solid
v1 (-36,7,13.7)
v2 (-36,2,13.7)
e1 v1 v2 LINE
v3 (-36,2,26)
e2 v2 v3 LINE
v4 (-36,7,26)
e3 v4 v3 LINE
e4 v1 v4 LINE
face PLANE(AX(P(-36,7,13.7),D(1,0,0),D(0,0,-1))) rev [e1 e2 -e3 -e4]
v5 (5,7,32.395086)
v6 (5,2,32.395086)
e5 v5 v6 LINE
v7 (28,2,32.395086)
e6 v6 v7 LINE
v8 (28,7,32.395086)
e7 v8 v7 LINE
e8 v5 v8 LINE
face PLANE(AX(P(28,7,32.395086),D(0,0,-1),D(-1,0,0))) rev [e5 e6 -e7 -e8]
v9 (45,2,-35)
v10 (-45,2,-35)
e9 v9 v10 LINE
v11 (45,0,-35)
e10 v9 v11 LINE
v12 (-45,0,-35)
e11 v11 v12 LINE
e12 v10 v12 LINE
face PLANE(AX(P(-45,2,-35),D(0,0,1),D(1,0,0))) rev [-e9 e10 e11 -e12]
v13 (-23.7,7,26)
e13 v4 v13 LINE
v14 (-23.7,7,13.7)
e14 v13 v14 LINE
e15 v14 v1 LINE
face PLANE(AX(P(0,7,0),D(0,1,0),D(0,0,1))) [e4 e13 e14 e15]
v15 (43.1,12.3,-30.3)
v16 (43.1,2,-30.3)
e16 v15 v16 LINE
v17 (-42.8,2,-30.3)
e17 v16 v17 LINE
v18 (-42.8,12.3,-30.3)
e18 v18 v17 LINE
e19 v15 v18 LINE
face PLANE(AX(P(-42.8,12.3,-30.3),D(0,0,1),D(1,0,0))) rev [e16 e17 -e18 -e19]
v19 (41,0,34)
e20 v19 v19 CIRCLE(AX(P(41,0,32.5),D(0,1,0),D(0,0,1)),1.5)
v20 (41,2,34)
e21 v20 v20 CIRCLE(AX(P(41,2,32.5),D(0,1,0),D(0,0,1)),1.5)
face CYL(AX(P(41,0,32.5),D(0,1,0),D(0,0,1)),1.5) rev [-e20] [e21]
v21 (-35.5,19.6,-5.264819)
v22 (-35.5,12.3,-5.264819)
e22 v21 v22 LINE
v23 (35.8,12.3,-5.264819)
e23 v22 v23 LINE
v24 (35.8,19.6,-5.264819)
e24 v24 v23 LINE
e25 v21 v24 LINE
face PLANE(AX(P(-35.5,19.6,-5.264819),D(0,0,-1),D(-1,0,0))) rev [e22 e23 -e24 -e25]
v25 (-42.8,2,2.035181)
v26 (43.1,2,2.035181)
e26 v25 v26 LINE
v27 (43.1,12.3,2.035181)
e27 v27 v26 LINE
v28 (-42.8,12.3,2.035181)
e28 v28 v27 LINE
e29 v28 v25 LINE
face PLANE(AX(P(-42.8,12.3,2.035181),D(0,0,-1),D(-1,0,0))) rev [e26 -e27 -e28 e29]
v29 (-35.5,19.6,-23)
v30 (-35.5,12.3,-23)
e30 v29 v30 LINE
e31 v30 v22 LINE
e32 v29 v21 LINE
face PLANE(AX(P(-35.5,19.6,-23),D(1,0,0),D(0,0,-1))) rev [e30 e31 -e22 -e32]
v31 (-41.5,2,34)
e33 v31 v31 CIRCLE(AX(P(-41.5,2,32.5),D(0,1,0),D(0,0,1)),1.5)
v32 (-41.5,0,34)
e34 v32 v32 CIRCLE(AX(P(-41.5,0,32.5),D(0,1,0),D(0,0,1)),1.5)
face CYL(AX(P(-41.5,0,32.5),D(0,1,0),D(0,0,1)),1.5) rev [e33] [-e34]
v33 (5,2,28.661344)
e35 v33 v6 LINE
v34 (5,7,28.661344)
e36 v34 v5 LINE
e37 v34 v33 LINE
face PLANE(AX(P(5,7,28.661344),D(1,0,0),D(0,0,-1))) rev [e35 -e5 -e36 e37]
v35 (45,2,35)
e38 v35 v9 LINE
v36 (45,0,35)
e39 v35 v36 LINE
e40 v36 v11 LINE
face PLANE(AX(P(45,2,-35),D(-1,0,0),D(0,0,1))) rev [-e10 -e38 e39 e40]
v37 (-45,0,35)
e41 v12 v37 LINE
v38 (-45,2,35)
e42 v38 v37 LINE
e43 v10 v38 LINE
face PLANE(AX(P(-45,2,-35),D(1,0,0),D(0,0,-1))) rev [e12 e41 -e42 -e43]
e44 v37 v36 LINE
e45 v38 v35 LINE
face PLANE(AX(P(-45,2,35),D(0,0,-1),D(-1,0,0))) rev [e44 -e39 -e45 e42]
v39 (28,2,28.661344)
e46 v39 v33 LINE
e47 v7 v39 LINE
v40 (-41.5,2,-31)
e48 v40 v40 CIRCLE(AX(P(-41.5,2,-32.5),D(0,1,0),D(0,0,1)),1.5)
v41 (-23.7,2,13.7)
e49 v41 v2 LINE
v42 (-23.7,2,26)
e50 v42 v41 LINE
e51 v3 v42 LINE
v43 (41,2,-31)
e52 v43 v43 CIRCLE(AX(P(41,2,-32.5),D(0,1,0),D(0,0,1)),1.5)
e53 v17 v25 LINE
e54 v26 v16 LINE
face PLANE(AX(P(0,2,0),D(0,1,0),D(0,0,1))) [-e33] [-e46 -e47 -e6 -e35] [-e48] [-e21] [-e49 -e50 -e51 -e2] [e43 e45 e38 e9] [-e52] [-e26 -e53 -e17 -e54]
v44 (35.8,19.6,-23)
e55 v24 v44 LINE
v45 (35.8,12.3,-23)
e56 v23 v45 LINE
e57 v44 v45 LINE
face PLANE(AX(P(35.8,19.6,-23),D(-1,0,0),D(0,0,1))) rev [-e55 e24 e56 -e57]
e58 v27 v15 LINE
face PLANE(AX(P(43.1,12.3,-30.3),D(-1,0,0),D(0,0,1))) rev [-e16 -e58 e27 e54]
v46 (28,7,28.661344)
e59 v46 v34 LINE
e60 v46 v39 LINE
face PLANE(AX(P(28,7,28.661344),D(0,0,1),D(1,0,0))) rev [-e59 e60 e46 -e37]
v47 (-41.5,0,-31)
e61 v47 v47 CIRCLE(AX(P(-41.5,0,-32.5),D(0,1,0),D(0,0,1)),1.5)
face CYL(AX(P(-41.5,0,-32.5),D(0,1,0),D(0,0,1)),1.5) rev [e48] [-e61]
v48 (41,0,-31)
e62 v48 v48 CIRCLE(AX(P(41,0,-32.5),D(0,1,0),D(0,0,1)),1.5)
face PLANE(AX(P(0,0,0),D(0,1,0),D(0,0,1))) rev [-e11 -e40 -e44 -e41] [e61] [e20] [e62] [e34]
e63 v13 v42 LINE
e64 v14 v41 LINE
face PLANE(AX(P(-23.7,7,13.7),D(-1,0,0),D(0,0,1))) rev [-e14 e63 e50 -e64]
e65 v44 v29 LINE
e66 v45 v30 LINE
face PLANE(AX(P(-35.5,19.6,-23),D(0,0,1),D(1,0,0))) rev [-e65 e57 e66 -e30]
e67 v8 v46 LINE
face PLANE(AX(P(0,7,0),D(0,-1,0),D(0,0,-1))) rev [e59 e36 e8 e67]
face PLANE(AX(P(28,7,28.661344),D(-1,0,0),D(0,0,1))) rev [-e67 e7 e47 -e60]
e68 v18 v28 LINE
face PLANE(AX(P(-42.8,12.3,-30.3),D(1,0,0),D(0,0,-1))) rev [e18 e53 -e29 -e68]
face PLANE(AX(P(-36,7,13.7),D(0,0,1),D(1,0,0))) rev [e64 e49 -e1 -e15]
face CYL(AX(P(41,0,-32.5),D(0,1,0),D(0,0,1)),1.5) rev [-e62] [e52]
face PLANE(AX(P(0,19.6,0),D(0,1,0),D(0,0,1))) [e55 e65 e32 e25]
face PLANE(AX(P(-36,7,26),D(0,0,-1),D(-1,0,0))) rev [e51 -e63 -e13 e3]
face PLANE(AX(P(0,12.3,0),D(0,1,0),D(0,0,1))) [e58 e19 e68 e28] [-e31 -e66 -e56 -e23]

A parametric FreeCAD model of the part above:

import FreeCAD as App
import Part
import Sketcher
from FreeCAD import Vector
Q = App.Units.Quantity


def add_polygon(sketch, points):
    """Adds a closed chain of lines whose ends are joined by coincident constraints."""
    first, n = sketch.GeometryCount, len(points)
    for a, b in zip(points, points[1:] + points[:1]):
        sketch.addGeometry(Part.LineSegment(App.Vector(*a, 0), App.Vector(*b, 0)), False)
    for i in range(n):
        sketch.addConstraint(Sketcher.Constraint("Coincident", first + i, 2, first + (i + 1) % n, 1))

doc = App.newDocument("Part")
params = doc.addObject("Spreadsheet::Sheet", "Params")
for row, (alias, value) in enumerate([
    ("sketch1_width", "90 mm"),
    ("sketch1_height", "70 mm"),
    ("pad1_length", "2 mm"),
    ("sketch2_diameter", "3 mm"),
    ("sketch3_width", "23 mm"),
    ("sketch3_width2", "12.3 mm"),
    ("pad2_length", "5 mm"),
    ("sketch4_width", "71.3 mm"),
    ("pad3_length", "17.6 mm"),
    ("sketch5_width", "85.9 mm"),
    ("pad4_length", "10.3 mm"),
], start=1):
    params.set(f"A{row}", alias)
    params.set(f"B{row}", "=" + value)
    params.setAlias(f"B{row}", alias)

body = doc.addObject("PartDesign::Body", "Body")

sketch1 = body.newObject("Sketcher::SketchObject", "Sketch")
sketch1.AttachmentSupport = (doc.getObject("XZ_Plane"), [""])
sketch1.MapMode = "FlatFace"
add_polygon(sketch1, [(-45, -35), (-45, 35), (45, 35), (45, -35)])
sketch1.addConstraint(Sketcher.Constraint("Vertical", 0))
sketch1.addConstraint(Sketcher.Constraint("Horizontal", 1))
sketch1.addConstraint(Sketcher.Constraint("Vertical", 2))
sketch1.addConstraint(Sketcher.Constraint("Horizontal", 3))
sketch1.addConstraint(Sketcher.Constraint("Symmetric", 0, 2, 2, 2, -1, 1))
sketch1.addConstraint(Sketcher.Constraint("DistanceX", 1, 1, 1, 2, Q("90 mm")))
sketch1.addConstraint(Sketcher.Constraint("DistanceY", 0, 1, 0, 2, Q("70 mm")))
sketch1.setExpression("Constraints[9]", "Params.sketch1_width")
sketch1.setExpression("Constraints[10]", "Params.sketch1_height")
pad1 = body.newObject("PartDesign::Pad", "Pad")
pad1.Profile = sketch1
pad1.setExpression("Length", "Params.pad1_length")
pad1.Reversed = True

sketch2 = body.newObject("Sketcher::SketchObject", "Sketch001")
sketch2.AttachmentSupport = (doc.getObject("XZ_Plane"), [""])
sketch2.MapMode = "FlatFace"
sketch2.AttachmentOffset = App.Placement(Vector(0, 0, -2), App.Rotation())
sketch2.addGeometry(Part.Circle(Vector(-41.5, -32.5, 0), Vector(0, 0, 1), 1.5), False)
sketch2.addGeometry(Part.Circle(Vector(-41.5, 32.5, 0), Vector(0, 0, 1), 1.5), False)
sketch2.addGeometry(Part.Circle(Vector(41, 32.5, 0), Vector(0, 0, 1), 1.5), False)
sketch2.addGeometry(Part.Circle(Vector(41, -32.5, 0), Vector(0, 0, 1), 1.5), False)
sketch2.addConstraint(Sketcher.Constraint("Equal", 0, 1))
sketch2.addConstraint(Sketcher.Constraint("Equal", 1, 2))
sketch2.addConstraint(Sketcher.Constraint("Equal", 2, 3))
sketch2.addConstraint(Sketcher.Constraint("Symmetric", 0, 3, 1, 3, -1))
sketch2.addConstraint(Sketcher.Constraint("Symmetric", 2, 3, 3, 3, -1))
sketch2.addConstraint(Sketcher.Constraint("Horizontal", 1, 3, 2, 3))
sketch2.addConstraint(Sketcher.Constraint("Diameter", 0, Q("3 mm")))
sketch2.addConstraint(Sketcher.Constraint("DistanceX", -1, 1, 2, 3, Q("41 mm")))
sketch2.addConstraint(Sketcher.Constraint("DistanceY", 0, 3, 1, 3, Q("65 mm")))
sketch2.addConstraint(Sketcher.Constraint("DistanceX", 0, 3, -1, 1, Q("41.5 mm")))
sketch2.setExpression("Constraints[6]", "Params.sketch2_diameter")
pocket1 = body.newObject("PartDesign::Pocket", "Pocket")
pocket1.Profile = sketch2
pocket1.Type = "ThroughAll"
pocket1.Reversed = True

sketch3 = body.newObject("Sketcher::SketchObject", "Sketch002")
sketch3.AttachmentSupport = (doc.getObject("XZ_Plane"), [""])
sketch3.MapMode = "FlatFace"
sketch3.AttachmentOffset = App.Placement(Vector(0, 0, -2), App.Rotation())
add_polygon(sketch3, [(5, 28.661344), (5, 32.395086), (28, 32.395086), (28, 28.661344)])
add_polygon(sketch3, [(-36, 13.7), (-36, 26), (-23.7, 26), (-23.7, 13.7)])
sketch3.addConstraint(Sketcher.Constraint("Vertical", 0))
sketch3.addConstraint(Sketcher.Constraint("Horizontal", 1))
sketch3.addConstraint(Sketcher.Constraint("Vertical", 2))
sketch3.addConstraint(Sketcher.Constraint("Horizontal", 3))
sketch3.addConstraint(Sketcher.Constraint("Vertical", 4))
sketch3.addConstraint(Sketcher.Constraint("Horizontal", 5))
sketch3.addConstraint(Sketcher.Constraint("Vertical", 6))
sketch3.addConstraint(Sketcher.Constraint("Horizontal", 7))
sketch3.addConstraint(Sketcher.Constraint("Equal", 7, 4))
sketch3.addConstraint(Sketcher.Constraint("DistanceX", 1, 1, 1, 2, Q("23 mm")))
sketch3.addConstraint(Sketcher.Constraint("DistanceX", 5, 1, 5, 2, Q("12.3 mm")))
sketch3.addConstraint(Sketcher.Constraint("DistanceX", -1, 1, 0, 2, Q("5 mm")))
sketch3.addConstraint(Sketcher.Constraint("DistanceX", 4, 2, -1, 1, Q("36 mm")))
sketch3.addConstraint(Sketcher.Constraint("DistanceY", -1, 1, 4, 2, Q("26 mm")))
sketch3.addConstraint(Sketcher.Constraint("DistanceY", 0, 1, 0, 2, Q("3.733742 mm")))
sketch3.addConstraint(Sketcher.Constraint("DistanceY", -1, 1, 0, 2, Q("32.395086 mm")))
sketch3.setExpression("Constraints[17]", "Params.sketch3_width")
sketch3.setExpression("Constraints[18]", "Params.sketch3_width2")
pad2 = body.newObject("PartDesign::Pad", "Pad001")
pad2.Profile = sketch3
pad2.setExpression("Length", "Params.pad2_length")
pad2.Reversed = True

sketch4 = body.newObject("Sketcher::SketchObject", "Sketch003")
sketch4.AttachmentSupport = (doc.getObject("XZ_Plane"), [""])
sketch4.MapMode = "FlatFace"
sketch4.AttachmentOffset = App.Placement(Vector(0, 0, -2), App.Rotation())
add_polygon(sketch4, [(-35.5, -23), (-35.5, -5.264819), (35.8, -5.264819), (35.8, -23)])
sketch4.addConstraint(Sketcher.Constraint("Vertical", 0))
sketch4.addConstraint(Sketcher.Constraint("Horizontal", 1))
sketch4.addConstraint(Sketcher.Constraint("Vertical", 2))
sketch4.addConstraint(Sketcher.Constraint("Horizontal", 3))
sketch4.addConstraint(Sketcher.Constraint("DistanceX", 1, 1, 1, 2, Q("71.3 mm")))
sketch4.addConstraint(Sketcher.Constraint("DistanceY", 2, 2, -1, 1, Q("23 mm")))
sketch4.addConstraint(Sketcher.Constraint("DistanceX", 0, 2, -1, 1, Q("35.5 mm")))
sketch4.addConstraint(Sketcher.Constraint("DistanceY", 0, 1, 0, 2, Q("17.735181 mm")))
sketch4.setExpression("Constraints[8]", "Params.sketch4_width")
pad3 = body.newObject("PartDesign::Pad", "Pad002")
pad3.Profile = sketch4
pad3.setExpression("Length", "Params.pad3_length")
pad3.Reversed = True

sketch5 = body.newObject("Sketcher::SketchObject", "Sketch004")
sketch5.AttachmentSupport = (doc.getObject("XZ_Plane"), [""])
sketch5.MapMode = "FlatFace"
sketch5.AttachmentOffset = App.Placement(Vector(0, 0, -2), App.Rotation())
add_polygon(sketch5, [(-42.8, -30.3), (-42.8, 2.035181), (43.1, 2.035181), (43.1, -30.3)])
sketch5.addConstraint(Sketcher.Constraint("Vertical", 0))
sketch5.addConstraint(Sketcher.Constraint("Horizontal", 1))
sketch5.addConstraint(Sketcher.Constraint("Vertical", 2))
sketch5.addConstraint(Sketcher.Constraint("Horizontal", 3))
sketch5.addConstraint(Sketcher.Constraint("DistanceX", 1, 1, 1, 2, Q("85.9 mm")))
sketch5.addConstraint(Sketcher.Constraint("DistanceX", 0, 2, -1, 1, Q("42.8 mm")))
sketch5.addConstraint(Sketcher.Constraint("DistanceY", 2, 2, -1, 1, Q("30.3 mm")))
sketch5.addConstraint(Sketcher.Constraint("DistanceY", 0, 1, 0, 2, Q("32.335181 mm")))
sketch5.setExpression("Constraints[8]", "Params.sketch5_width")
pad4 = body.newObject("PartDesign::Pad", "Pad003")
pad4.Profile = sketch5
pad4.setExpression("Length", "Params.pad4_length")
pad4.Reversed = True

doc.recompute()
